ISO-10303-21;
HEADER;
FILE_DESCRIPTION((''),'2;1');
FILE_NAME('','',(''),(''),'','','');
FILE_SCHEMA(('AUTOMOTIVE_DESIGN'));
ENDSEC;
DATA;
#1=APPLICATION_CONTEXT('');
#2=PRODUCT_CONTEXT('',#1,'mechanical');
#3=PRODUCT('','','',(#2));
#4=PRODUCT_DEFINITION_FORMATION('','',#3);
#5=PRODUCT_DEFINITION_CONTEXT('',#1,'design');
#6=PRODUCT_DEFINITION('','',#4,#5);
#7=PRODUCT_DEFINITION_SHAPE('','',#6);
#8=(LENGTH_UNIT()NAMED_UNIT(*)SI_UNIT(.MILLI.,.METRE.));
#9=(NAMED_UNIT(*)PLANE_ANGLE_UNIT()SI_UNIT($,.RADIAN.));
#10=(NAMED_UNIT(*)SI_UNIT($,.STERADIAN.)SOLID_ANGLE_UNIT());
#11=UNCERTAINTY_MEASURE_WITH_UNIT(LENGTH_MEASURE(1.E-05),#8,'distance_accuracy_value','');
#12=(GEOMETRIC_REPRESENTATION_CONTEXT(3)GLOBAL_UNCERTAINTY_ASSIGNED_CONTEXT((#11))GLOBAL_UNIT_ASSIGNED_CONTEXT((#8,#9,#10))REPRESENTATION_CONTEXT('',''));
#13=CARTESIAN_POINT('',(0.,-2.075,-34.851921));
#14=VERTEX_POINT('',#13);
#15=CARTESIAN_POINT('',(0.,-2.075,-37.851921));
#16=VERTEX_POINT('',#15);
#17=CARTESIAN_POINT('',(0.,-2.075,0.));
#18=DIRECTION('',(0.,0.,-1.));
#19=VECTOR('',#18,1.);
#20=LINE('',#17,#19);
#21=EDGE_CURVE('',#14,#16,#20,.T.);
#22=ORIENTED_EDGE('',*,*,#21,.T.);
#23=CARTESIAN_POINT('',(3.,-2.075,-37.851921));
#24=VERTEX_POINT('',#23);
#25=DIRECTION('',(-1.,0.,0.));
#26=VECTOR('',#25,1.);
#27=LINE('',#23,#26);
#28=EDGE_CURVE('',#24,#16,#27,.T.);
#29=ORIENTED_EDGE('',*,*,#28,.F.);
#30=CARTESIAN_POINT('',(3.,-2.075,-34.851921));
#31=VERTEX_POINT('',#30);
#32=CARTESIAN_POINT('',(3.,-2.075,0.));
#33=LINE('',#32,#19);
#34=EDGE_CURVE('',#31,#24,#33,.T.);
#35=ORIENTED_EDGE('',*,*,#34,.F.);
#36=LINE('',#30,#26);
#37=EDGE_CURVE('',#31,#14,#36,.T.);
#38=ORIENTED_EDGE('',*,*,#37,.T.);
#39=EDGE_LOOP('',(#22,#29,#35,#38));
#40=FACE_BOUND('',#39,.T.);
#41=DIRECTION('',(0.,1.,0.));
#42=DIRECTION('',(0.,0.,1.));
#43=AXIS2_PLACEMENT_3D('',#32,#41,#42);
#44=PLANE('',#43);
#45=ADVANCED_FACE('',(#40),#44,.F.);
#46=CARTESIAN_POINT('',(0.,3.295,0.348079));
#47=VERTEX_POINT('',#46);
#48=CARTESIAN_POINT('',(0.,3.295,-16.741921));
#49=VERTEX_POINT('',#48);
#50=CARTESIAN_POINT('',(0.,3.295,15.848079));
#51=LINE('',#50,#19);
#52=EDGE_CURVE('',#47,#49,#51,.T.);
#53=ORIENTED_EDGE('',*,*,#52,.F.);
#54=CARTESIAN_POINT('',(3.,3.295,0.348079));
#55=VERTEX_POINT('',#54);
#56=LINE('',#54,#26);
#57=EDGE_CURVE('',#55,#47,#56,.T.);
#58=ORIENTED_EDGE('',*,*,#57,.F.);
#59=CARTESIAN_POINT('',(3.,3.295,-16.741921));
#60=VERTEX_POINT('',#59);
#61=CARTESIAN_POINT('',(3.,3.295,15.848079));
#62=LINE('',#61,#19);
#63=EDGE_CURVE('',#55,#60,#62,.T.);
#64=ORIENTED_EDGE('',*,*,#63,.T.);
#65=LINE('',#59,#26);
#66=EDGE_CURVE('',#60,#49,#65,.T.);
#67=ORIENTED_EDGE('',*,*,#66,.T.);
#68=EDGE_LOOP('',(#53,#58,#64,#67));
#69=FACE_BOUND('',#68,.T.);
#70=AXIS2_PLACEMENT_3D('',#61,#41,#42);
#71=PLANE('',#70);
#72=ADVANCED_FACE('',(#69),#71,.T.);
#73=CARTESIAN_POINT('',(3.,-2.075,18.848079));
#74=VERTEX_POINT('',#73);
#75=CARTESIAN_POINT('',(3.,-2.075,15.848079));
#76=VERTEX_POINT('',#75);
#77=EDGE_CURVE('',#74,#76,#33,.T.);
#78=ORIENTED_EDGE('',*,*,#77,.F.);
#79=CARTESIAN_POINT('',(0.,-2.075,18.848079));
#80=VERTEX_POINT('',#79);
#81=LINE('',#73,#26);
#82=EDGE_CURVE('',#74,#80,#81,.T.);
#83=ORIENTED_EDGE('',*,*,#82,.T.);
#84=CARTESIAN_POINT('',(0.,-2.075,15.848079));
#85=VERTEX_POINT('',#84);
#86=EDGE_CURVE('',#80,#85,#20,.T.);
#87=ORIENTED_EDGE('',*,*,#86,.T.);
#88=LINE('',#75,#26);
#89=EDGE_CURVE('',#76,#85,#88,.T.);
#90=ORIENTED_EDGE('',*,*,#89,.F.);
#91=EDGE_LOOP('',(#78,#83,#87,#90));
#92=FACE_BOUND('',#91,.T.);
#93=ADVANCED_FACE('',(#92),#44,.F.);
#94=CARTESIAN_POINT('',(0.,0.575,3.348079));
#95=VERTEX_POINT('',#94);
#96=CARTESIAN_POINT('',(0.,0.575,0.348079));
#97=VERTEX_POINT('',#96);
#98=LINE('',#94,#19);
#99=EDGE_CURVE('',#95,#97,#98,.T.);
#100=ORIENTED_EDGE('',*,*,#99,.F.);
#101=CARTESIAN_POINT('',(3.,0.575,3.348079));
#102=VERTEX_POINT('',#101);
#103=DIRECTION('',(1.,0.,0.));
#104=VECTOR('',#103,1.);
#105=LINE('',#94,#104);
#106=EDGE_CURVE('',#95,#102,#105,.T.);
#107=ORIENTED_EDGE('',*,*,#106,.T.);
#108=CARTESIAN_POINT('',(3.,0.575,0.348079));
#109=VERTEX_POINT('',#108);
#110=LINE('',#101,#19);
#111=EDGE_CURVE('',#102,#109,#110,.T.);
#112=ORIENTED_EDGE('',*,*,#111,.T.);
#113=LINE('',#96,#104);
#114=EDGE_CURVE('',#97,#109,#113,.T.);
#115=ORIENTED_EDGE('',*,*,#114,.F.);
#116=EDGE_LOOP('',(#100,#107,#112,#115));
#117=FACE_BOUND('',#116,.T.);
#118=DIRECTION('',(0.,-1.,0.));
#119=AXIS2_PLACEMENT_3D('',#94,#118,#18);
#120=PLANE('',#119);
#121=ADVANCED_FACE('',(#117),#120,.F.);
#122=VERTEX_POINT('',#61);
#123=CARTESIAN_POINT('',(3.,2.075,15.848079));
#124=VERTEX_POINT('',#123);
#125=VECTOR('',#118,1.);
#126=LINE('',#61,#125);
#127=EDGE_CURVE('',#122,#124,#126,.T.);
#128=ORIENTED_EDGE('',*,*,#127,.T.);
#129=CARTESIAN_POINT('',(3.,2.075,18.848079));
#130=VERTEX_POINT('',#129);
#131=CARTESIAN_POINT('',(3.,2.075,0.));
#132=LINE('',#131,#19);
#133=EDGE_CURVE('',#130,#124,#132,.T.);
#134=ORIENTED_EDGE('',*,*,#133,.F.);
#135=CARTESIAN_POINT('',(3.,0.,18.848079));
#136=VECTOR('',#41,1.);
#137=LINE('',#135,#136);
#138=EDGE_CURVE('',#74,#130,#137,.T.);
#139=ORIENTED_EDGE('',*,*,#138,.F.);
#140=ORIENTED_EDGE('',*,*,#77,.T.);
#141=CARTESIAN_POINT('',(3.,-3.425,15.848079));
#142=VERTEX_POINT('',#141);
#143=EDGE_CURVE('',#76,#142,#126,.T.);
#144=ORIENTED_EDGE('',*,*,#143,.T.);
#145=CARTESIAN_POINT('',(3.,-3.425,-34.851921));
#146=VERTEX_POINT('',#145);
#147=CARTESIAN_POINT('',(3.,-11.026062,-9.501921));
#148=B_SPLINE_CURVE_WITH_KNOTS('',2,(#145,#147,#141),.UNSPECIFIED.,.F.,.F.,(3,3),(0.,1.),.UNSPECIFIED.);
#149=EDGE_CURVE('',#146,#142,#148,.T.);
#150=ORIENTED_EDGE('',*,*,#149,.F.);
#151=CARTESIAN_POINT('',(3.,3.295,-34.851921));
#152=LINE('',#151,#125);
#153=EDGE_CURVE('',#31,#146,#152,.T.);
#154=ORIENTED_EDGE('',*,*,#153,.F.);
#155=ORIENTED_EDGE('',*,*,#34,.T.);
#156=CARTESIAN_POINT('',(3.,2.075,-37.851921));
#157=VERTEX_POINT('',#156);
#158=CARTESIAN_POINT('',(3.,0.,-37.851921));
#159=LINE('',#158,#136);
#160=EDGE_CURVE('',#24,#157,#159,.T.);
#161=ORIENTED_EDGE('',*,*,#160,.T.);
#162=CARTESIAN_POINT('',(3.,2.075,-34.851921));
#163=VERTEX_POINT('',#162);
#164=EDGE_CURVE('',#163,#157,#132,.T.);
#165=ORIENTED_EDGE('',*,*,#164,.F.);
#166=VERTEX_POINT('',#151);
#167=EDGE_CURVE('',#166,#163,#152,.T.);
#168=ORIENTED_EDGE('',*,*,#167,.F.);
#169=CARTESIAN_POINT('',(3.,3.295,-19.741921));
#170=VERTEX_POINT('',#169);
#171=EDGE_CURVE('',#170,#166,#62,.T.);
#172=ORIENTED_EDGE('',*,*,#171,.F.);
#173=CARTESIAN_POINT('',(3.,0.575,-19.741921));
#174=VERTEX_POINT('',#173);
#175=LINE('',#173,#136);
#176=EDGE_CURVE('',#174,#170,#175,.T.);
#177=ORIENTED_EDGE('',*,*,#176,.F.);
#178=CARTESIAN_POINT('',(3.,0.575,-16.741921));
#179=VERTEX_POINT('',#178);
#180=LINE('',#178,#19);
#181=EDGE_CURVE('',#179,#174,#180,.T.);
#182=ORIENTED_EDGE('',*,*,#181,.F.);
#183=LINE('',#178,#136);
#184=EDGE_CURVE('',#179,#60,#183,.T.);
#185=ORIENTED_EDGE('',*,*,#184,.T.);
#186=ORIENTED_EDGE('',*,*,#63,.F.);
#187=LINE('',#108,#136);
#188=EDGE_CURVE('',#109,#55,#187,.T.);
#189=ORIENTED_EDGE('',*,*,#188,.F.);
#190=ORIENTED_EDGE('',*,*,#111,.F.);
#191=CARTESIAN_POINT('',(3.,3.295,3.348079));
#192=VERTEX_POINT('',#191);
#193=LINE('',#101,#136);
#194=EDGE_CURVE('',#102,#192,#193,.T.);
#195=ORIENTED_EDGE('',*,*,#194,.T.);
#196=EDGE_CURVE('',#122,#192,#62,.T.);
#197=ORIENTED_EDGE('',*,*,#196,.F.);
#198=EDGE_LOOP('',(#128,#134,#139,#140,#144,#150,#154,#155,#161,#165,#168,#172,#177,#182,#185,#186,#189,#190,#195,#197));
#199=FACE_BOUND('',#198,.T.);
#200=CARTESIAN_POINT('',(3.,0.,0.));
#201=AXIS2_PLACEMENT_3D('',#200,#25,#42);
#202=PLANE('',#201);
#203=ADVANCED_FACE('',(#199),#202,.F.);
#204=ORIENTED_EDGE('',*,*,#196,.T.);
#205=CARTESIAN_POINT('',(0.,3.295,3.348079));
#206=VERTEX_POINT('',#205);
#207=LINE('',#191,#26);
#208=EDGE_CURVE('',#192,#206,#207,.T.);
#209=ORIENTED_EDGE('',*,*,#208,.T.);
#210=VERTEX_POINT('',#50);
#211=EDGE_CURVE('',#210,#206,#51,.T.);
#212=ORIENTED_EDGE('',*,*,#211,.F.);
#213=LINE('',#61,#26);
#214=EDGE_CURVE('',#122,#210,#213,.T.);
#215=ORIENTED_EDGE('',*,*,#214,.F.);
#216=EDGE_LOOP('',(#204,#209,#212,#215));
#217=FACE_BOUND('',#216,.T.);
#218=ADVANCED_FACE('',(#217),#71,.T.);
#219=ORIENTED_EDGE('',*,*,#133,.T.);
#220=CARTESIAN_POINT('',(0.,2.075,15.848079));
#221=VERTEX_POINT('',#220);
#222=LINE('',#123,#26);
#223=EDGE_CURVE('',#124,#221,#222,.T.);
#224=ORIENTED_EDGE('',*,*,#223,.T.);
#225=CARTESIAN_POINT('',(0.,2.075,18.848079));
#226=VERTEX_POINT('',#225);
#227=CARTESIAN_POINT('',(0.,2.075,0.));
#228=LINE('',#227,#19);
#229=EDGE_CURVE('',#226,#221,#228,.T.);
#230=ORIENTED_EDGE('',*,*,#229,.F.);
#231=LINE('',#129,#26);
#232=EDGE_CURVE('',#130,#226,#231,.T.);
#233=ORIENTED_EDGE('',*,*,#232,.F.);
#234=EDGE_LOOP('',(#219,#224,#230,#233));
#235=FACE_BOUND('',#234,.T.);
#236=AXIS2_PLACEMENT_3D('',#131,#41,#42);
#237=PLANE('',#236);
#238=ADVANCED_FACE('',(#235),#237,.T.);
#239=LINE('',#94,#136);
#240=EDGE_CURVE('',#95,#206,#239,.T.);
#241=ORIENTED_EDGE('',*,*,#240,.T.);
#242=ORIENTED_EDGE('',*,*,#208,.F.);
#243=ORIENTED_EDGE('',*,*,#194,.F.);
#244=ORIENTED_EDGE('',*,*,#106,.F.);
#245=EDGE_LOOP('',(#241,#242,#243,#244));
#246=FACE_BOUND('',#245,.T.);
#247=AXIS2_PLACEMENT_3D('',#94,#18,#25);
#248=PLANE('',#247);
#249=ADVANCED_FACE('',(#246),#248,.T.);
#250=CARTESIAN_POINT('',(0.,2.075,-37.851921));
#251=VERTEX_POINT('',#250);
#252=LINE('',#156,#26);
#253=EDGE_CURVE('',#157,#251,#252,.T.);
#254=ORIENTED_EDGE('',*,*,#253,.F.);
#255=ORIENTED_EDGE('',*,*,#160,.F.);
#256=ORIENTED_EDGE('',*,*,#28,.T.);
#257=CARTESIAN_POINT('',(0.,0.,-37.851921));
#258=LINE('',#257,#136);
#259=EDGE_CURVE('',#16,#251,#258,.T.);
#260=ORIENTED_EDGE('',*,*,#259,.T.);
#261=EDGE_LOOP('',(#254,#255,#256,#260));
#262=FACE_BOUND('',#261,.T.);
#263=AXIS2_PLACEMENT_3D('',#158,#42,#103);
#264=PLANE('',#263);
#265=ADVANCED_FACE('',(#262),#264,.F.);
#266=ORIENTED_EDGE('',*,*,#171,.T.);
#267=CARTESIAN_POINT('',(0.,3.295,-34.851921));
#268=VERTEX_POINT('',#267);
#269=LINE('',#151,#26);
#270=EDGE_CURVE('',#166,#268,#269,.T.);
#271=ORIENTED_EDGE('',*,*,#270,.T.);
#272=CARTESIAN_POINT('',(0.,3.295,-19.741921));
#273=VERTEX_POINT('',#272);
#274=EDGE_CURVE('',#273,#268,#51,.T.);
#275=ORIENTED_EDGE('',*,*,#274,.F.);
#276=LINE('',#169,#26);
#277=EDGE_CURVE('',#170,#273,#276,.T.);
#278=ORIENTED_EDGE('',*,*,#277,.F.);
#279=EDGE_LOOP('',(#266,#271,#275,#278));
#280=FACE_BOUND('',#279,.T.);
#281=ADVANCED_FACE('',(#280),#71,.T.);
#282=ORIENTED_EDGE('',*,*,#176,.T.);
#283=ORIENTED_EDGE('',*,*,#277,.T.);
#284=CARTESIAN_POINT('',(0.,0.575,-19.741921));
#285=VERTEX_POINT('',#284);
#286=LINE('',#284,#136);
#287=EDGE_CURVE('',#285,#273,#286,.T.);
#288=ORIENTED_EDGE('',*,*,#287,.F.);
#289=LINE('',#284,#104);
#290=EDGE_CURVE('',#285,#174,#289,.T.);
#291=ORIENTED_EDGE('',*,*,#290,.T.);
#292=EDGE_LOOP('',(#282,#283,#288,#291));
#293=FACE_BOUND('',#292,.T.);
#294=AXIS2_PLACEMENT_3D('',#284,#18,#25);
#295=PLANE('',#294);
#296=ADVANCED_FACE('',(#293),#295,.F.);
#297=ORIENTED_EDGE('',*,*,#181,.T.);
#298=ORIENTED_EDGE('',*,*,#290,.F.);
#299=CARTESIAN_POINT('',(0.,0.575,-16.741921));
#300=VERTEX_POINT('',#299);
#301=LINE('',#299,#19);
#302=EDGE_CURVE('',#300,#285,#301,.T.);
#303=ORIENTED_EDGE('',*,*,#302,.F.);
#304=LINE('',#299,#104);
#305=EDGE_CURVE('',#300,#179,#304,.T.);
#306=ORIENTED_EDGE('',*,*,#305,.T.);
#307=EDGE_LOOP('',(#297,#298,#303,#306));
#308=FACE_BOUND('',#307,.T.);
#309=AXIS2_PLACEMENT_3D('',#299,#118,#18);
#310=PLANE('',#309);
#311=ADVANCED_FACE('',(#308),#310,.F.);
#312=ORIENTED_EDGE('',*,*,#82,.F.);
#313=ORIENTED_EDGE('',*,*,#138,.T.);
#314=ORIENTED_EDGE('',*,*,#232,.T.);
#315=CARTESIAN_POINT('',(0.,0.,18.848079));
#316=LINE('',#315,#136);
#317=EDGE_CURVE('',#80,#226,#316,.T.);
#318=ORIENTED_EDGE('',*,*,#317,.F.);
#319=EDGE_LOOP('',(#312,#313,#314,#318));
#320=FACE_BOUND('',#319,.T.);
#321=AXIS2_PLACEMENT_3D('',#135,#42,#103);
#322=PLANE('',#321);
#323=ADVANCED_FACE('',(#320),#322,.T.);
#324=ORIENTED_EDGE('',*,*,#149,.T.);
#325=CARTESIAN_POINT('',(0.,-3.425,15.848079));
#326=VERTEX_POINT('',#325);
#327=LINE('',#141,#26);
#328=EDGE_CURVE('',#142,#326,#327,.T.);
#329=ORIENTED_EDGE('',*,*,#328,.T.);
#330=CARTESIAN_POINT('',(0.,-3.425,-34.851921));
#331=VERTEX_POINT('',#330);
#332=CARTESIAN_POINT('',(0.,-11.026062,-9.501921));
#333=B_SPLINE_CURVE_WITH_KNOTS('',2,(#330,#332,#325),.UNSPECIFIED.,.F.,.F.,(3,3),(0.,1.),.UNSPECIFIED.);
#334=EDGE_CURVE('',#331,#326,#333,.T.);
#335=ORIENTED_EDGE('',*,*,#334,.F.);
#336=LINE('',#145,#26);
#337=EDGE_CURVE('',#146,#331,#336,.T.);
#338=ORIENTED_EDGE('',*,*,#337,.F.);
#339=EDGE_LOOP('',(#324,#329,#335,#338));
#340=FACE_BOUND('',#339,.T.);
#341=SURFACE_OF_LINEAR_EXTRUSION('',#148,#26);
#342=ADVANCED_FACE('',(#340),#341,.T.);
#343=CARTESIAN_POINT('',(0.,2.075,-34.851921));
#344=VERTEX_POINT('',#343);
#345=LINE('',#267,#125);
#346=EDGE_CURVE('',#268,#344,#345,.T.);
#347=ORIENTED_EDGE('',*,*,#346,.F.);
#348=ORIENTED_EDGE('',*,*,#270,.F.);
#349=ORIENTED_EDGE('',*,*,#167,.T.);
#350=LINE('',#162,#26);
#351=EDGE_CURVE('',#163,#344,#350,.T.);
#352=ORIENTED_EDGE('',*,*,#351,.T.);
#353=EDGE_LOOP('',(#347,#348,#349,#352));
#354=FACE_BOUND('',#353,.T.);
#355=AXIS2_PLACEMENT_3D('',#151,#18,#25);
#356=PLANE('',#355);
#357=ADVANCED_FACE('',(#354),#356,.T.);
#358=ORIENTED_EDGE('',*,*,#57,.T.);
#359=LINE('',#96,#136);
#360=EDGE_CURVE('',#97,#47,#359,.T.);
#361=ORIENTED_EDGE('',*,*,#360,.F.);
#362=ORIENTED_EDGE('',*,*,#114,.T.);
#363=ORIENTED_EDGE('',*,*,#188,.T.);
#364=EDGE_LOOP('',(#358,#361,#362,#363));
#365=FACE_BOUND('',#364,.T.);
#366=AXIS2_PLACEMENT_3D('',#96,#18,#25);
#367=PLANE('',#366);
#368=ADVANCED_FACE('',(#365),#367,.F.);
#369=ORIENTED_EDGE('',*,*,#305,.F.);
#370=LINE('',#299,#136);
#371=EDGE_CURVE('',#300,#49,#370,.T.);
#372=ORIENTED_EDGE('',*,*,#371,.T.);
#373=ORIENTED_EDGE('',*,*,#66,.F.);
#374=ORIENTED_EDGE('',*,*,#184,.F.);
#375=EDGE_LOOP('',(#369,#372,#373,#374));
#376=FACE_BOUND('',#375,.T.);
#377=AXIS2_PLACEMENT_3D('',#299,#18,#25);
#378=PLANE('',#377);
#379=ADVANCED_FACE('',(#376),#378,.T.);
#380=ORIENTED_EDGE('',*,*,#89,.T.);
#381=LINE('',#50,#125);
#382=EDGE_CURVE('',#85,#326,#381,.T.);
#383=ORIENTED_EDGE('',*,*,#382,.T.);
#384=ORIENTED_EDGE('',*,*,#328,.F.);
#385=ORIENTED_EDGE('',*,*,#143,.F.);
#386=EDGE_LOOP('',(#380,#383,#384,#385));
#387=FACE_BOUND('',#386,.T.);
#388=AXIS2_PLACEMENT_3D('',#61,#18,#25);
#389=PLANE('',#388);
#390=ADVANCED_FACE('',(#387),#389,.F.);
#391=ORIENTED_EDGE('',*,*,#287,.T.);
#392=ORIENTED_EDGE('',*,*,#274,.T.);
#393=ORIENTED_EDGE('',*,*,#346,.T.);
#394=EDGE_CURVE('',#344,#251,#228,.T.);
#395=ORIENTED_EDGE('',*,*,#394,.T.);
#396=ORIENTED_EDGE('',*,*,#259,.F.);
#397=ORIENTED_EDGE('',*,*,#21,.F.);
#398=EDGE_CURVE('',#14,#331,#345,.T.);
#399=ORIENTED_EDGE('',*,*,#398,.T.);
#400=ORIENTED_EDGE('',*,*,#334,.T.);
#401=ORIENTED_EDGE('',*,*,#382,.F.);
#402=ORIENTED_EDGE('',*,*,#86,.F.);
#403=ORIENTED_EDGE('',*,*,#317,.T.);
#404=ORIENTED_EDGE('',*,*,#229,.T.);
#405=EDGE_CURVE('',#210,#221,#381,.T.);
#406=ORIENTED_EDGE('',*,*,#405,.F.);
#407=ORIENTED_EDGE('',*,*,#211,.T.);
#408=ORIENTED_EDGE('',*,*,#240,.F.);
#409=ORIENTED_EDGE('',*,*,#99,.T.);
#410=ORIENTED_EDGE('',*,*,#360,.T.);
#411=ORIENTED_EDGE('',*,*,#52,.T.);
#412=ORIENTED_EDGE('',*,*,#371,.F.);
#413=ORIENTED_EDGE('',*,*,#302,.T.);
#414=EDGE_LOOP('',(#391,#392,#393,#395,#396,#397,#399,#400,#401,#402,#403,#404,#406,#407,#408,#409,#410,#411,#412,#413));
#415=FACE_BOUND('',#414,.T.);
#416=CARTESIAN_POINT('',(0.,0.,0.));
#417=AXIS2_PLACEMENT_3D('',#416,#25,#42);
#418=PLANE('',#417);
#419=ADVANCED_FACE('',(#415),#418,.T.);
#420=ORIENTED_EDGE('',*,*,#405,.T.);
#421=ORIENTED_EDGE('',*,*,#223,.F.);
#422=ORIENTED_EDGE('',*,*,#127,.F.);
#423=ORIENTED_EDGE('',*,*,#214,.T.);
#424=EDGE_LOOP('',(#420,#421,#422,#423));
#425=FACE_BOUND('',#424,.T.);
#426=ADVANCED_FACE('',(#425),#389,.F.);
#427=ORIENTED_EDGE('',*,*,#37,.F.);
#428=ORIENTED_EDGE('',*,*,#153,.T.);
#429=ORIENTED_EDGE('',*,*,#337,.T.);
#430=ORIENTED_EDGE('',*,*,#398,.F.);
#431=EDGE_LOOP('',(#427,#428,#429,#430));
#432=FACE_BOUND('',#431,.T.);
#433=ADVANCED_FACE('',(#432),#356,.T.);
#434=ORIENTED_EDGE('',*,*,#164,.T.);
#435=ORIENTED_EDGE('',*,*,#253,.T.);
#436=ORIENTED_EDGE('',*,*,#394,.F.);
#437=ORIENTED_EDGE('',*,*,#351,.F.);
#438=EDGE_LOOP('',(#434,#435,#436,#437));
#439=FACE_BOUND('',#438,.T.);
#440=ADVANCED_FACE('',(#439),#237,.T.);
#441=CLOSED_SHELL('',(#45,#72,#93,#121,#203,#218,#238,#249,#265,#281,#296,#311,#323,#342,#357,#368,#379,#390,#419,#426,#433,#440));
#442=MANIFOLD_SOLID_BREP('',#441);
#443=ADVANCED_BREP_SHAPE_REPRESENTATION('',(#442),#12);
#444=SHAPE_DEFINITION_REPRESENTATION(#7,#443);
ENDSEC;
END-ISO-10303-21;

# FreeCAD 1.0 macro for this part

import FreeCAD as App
import Part
import Sketcher
Q = App.Units.Quantity


def add_polygon(sketch, points):
    """Adds a closed chain of lines whose ends are joined by coincident constraints."""
    first, n = sketch.GeometryCount, len(points)
    for a, b in zip(points, points[1:] + points[:1]):
        sketch.addGeometry(Part.LineSegment(App.Vector(*a, 0), App.Vector(*b, 0)), False)
    for i in range(n):
        sketch.addConstraint(Sketcher.Constraint("Coincident", first + i, 2, first + (i + 1) % n, 1))

doc = App.newDocument("Part")
body = doc.addObject("PartDesign::Body", "Body")

# Sketch on YZ plane
sketch1 = body.newObject("Sketcher::SketchObject", "Sketch")
sketch1.AttachmentSupport = (doc.getObject("YZ_Plane"), [""])
sketch1.MapMode = "FlatFace"
add_polygon(sketch1, [(3, 16), (-3, 16), (-3, -35), (3, -35)])  # lines 0-3
sketch1.addConstraint(Sketcher.Constraint("Horizontal", 0))
sketch1.addConstraint(Sketcher.Constraint("Vertical", 1))
sketch1.addConstraint(Sketcher.Constraint("Horizontal", 2))
sketch1.addConstraint(Sketcher.Constraint("Vertical", 3))
sketch1.addConstraint(Sketcher.Constraint("DistanceY", 1, 2, 1, 1, Q("50.7 mm")))
sketch1.addConstraint(Sketcher.Constraint("DistanceX", 0, 2, 0, 1, Q("6.72 mm")))
sketch1.addConstraint(Sketcher.Constraint("DistanceX", 0, 2, -1, 1, Q("3.425 mm")))
sketch1.addConstraint(Sketcher.Constraint("DistanceY", -1, 1, 0, 2, Q("15.848079 mm")))
pad1 = body.newObject("PartDesign::Pad", "Pad")
pad1.Profile = sketch1
pad1.Length = 3

# Sketch on YZ plane
sketch2 = body.newObject("Sketcher::SketchObject", "Sketch001")
sketch2.AttachmentSupport = (doc.getObject("YZ_Plane"), [""])
sketch2.MapMode = "FlatFace"
add_polygon(sketch2, [(2.1, -34.9), (-2.1, -34.9), (-2.1, -37.9), (2.1, -37.9)])  # lines 0-3
sketch2.addConstraint(Sketcher.Constraint("Horizontal", 0))
sketch2.addConstraint(Sketcher.Constraint("Vertical", 1))
sketch2.addConstraint(Sketcher.Constraint("Horizontal", 2))
sketch2.addConstraint(Sketcher.Constraint("Vertical", 3))
sketch2.addConstraint(Sketcher.Constraint("DistanceY", 1, 2, 1, 1, Q("3 mm")))
sketch2.addConstraint(Sketcher.Constraint("DistanceX", 0, 2, 0, 1, Q("4.15 mm")))
sketch2.addConstraint(Sketcher.Constraint("DistanceX", 0, 2, -1, 1, Q("2.075 mm")))
sketch2.addConstraint(Sketcher.Constraint("DistanceY", 0, 2, -1, 1, Q("34.851921 mm")))
pad2 = body.newObject("PartDesign::Pad", "Pad001")
pad2.Profile = sketch2
pad2.Length = 3

# Sketch on YZ plane
sketch3 = body.newObject("Sketcher::SketchObject", "Sketch002")
sketch3.AttachmentSupport = (doc.getObject("YZ_Plane"), [""])
sketch3.MapMode = "FlatFace"
add_polygon(sketch3, [(2.1, 18.8), (-2.1, 18.8), (-2.1, 15.8), (2.1, 15.8)])  # lines 0-3
sketch3.addConstraint(Sketcher.Constraint("Horizontal", 0))
sketch3.addConstraint(Sketcher.Constraint("Vertical", 1))
sketch3.addConstraint(Sketcher.Constraint("Horizontal", 2))
sketch3.addConstraint(Sketcher.Constraint("Vertical", 3))
sketch3.addConstraint(Sketcher.Constraint("DistanceY", 1, 2, 1, 1, Q("3 mm")))
sketch3.addConstraint(Sketcher.Constraint("DistanceX", 0, 2, 0, 1, Q("4.15 mm")))
sketch3.addConstraint(Sketcher.Constraint("DistanceX", 0, 2, -1, 1, Q("2.075 mm")))
sketch3.addConstraint(Sketcher.Constraint("DistanceY", -1, 1, 0, 2, Q("18.848079 mm")))
pad3 = body.newObject("PartDesign::Pad", "Pad002")
pad3.Profile = sketch3
pad3.Length = 3

# Sketch on YZ plane
sketch4 = body.newObject("Sketcher::SketchObject", "Sketch003")
sketch4.AttachmentSupport = (doc.getObject("YZ_Plane"), [""])
sketch4.MapMode = "FlatFace"
sketch4.addGeometry(Part.BSplineCurve([App.Vector(-3.425, -34.851921, 0), App.Vector(-11.026062, -9.501921, 0), App.Vector(-3.425, 15.848079, 0)], [3, 3], [0, 1], False, 2, [1, 1, 1], False), False)
sketch4.addGeometry(Part.LineSegment(App.Vector(-3.425, -34.851921, 0), App.Vector(-3.425, 15.848079, 0)), False)
sketch4.addConstraint(Sketcher.Constraint("Block", 0))
sketch4.addConstraint(Sketcher.Constraint("Coincident", 0, 1, 1, 1))
sketch4.addConstraint(Sketcher.Constraint("Coincident", 1, 2, 0, 2))
pad4 = body.newObject("PartDesign::Pad", "Pad003")
pad4.Profile = sketch4
pad4.Length = 3

# Sketch on YZ plane
sketch5 = body.newObject("Sketcher::SketchObject", "Sketch004")
sketch5.AttachmentSupport = (doc.getObject("YZ_Plane"), [""])
sketch5.MapMode = "FlatFace"
sketch5.AttachmentOffset = App.Placement(App.Vector(0, 0, 3), App.Rotation())
add_polygon(sketch5, [(6, 3.3), (0.6, 3.3), (0.6, 0.3), (6, 0.3)])  # lines 0-3
add_polygon(sketch5, [(6, -16.7), (0.6, -16.7), (0.6, -19.7), (6, -19.7)])  # lines 4-7
sketch5.addConstraint(Sketcher.Constraint("Horizontal", 0))
sketch5.addConstraint(Sketcher.Constraint("Vertical", 1))
sketch5.addConstraint(Sketcher.Constraint("Horizontal", 2))
sketch5.addConstraint(Sketcher.Constraint("Vertical", 3))
sketch5.addConstraint(Sketcher.Constraint("Horizontal", 4))
sketch5.addConstraint(Sketcher.Constraint("Vertical", 5))
sketch5.addConstraint(Sketcher.Constraint("Horizontal", 6))
sketch5.addConstraint(Sketcher.Constraint("Vertical", 7))
sketch5.addConstraint(Sketcher.Constraint("Vertical", 1, 2, 4, 2))
sketch5.addConstraint(Sketcher.Constraint("Vertical", 3, 2, 6, 2))
sketch5.addConstraint(Sketcher.Constraint("Equal", 3, 5))
sketch5.addConstraint(Sketcher.Constraint("DistanceY", 1, 2, 1, 1, Q("3 mm")))
sketch5.addConstraint(Sketcher.Constraint("DistanceY", 4, 2, 1, 2, Q("17.09 mm")))
sketch5.addConstraint(Sketcher.Constraint("DistanceX", -1, 1, 0, 2, Q("0.575 mm")))
sketch5.addConstraint(Sketcher.Constraint("DistanceX", 0, 2, 0, 1, Q("5.420632 mm")))
sketch5.addConstraint(Sketcher.Constraint("DistanceY", -1, 1, 0, 2, Q("3.348079 mm")))
pocket1 = body.newObject("PartDesign::Pocket", "Pocket")
pocket1.Profile = sketch5
pocket1.Length = 3

doc.recompute()
